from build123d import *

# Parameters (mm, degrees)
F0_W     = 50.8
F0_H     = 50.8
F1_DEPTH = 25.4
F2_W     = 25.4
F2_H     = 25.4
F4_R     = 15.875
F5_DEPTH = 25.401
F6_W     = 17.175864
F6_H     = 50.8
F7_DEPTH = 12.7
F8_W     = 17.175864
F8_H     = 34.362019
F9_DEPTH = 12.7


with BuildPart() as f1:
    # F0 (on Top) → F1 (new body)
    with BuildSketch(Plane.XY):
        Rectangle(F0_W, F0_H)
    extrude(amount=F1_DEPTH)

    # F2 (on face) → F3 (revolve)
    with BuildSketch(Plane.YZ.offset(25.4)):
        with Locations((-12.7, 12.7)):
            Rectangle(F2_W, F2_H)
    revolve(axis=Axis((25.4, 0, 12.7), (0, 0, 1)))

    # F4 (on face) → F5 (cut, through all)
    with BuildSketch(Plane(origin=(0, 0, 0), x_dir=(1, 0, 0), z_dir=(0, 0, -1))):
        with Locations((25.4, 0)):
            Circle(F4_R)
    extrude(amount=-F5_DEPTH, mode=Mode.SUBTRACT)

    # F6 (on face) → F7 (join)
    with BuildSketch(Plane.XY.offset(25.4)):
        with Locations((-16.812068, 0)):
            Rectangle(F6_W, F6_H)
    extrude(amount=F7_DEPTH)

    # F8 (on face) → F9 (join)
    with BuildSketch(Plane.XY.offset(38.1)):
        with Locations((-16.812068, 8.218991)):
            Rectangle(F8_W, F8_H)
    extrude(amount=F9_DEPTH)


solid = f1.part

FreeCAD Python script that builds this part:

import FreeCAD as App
import Part
import Sketcher
Q = App.Units.Quantity

doc = App.newDocument("Part")
body = doc.addObject("PartDesign::Body", "Body")

sketch1 = body.newObject("Sketcher::SketchObject", "Sketch")
sketch1.AttachmentSupport = (doc.getObject("XY_Plane"), [""])
sketch1.MapMode = "FlatFace"
sketch1.addGeometry(Part.LineSegment(App.Vector(-25, 25, 0), App.Vector(-25, -25, 0)), False)
sketch1.addGeometry(Part.LineSegment(App.Vector(-25, -25, 0), App.Vector(25, -25, 0)), False)
sketch1.addGeometry(Part.LineSegment(App.Vector(25, -25, 0), App.Vector(25, 25, 0)), False)
sketch1.addGeometry(Part.LineSegment(App.Vector(25, 25, 0), App.Vector(-25, 25, 0)), False)
sketch1.addConstraint(Sketcher.Constraint("Coincident", 0, 2, 1, 1))
sketch1.addConstraint(Sketcher.Constraint("Coincident", 1, 2, 2, 1))
sketch1.addConstraint(Sketcher.Constraint("Coincident", 2, 2, 3, 1))
sketch1.addConstraint(Sketcher.Constraint("Coincident", 3, 2, 0, 1))
sketch1.addConstraint(Sketcher.Constraint("Vertical", 0))
sketch1.addConstraint(Sketcher.Constraint("Horizontal", 1))
sketch1.addConstraint(Sketcher.Constraint("Vertical", 2))
sketch1.addConstraint(Sketcher.Constraint("Horizontal", 3))
sketch1.addConstraint(Sketcher.Constraint("Symmetric", 0, 2, 2, 2, -1, 1))
sketch1.addConstraint(Sketcher.Constraint("Equal", 3, 0))
sketch1.addConstraint(Sketcher.Constraint("DistanceX", 1, 1, 1, 2, Q("2 in")))
pad1 = body.newObject("PartDesign::Pad", "Pad")
pad1.Profile = sketch1
pad1.Length = Q("1 in")

sketch2 = body.newObject("Sketcher::SketchObject", "Sketch001")
sketch2.AttachmentSupport = (doc.getObject("YZ_Plane"), [""])
sketch2.MapMode = "FlatFace"
sketch2.AttachmentOffset = App.Placement(App.Vector(0, 0, 1 * 25.4), App.Rotation())
sketch2.addGeometry(Part.LineSegment(App.Vector(-25, 25, 0), App.Vector(-25, 0, 0)), False)
sketch2.addGeometry(Part.LineSegment(App.Vector(-25, 0, 0), App.Vector(0, 0, 0)), False)
sketch2.addGeometry(Part.LineSegment(App.Vector(0, 0, 0), App.Vector(0, 25, 0)), False)
sketch2.addGeometry(Part.LineSegment(App.Vector(0, 25, 0), App.Vector(-25, 25, 0)), False)
sketch2.addConstraint(Sketcher.Constraint("Coincident", 0, 2, 1, 1))
sketch2.addConstraint(Sketcher.Constraint("Coincident", 1, 2, 2, 1))
sketch2.addConstraint(Sketcher.Constraint("Coincident", 2, 2, 3, 1))
sketch2.addConstraint(Sketcher.Constraint("Coincident", 3, 2, 0, 1))
sketch2.addConstraint(Sketcher.Constraint("Vertical", 0))
sketch2.addConstraint(Sketcher.Constraint("Horizontal", 1))
sketch2.addConstraint(Sketcher.Constraint("Vertical", 2))
sketch2.addConstraint(Sketcher.Constraint("Horizontal", 3))
sketch2.addConstraint(Sketcher.Constraint("Coincident", 1, 2, -1, 1))
sketch2.addConstraint(Sketcher.Constraint("Equal", 3, 0))
sketch2.addConstraint(Sketcher.Constraint("DistanceX", 1, 1, 1, 2, Q("1 in")))
revolution = body.newObject("PartDesign::Revolution", "Revolution")
revolution.Profile = sketch2
revolution.ReferenceAxis = (sketch2, ["V_Axis"])
revolution.Angle = 360

sketch3 = body.newObject("Sketcher::SketchObject", "Sketch002")
sketch3.AttachmentSupport = (doc.getObject("XY_Plane"), [""])
sketch3.MapMode = "FlatFace"
sketch3.addGeometry(Part.Circle(App.Vector(25, 0, 0), App.Vector(0, 0, 1), 16), False)
sketch3.addConstraint(Sketcher.Constraint("PointOnObject", 0, 3, -1))
sketch3.addConstraint(Sketcher.Constraint("Diameter", 0, Q("1.25 in")))
sketch3.addConstraint(Sketcher.Constraint("DistanceX", -1, 1, 0, 3, Q("1 in")))
pocket1 = body.newObject("PartDesign::Pocket", "Pocket")
pocket1.Profile = sketch3
pocket1.Type = "ThroughAll"
pocket1.Reversed = True

sketch4 = body.newObject("Sketcher::SketchObject", "Sketch003")
sketch4.AttachmentSupport = (doc.getObject("XY_Plane"), [""])
sketch4.MapMode = "FlatFace"
sketch4.AttachmentOffset = App.Placement(App.Vector(0, 0, 1 * 25.4), App.Rotation())
sketch4.addGeometry(Part.LineSegment(App.Vector(-25, 25, 0), App.Vector(-25, -25, 0)), False)
sketch4.addGeometry(Part.LineSegment(App.Vector(-25, -25, 0), App.Vector(-8, -25, 0)), False)
sketch4.addGeometry(Part.LineSegment(App.Vector(-8, -25, 0), App.Vector(-8, 25, 0)), False)
sketch4.addGeometry(Part.LineSegment(App.Vector(-8, 25, 0), App.Vector(-25, 25, 0)), False)
sketch4.addConstraint(Sketcher.Constraint("Coincident", 0, 2, 1, 1))
sketch4.addConstraint(Sketcher.Constraint("Coincident", 1, 2, 2, 1))
sketch4.addConstraint(Sketcher.Constraint("Coincident", 2, 2, 3, 1))
sketch4.addConstraint(Sketcher.Constraint("Coincident", 3, 2, 0, 1))
sketch4.addConstraint(Sketcher.Constraint("Vertical", 0))
sketch4.addConstraint(Sketcher.Constraint("Horizontal", 1))
sketch4.addConstraint(Sketcher.Constraint("Vertical", 2))
sketch4.addConstraint(Sketcher.Constraint("Horizontal", 3))
sketch4.addConstraint(Sketcher.Constraint("DistanceY", 0, 2, 0, 1, Q("2 in")))
sketch4.addConstraint(Sketcher.Constraint("DistanceX", 0, 2, -1, 1, Q("1 in")))
sketch4.addConstraint(Sketcher.Constraint("DistanceY", 0, 2, -1, 1, Q("1 in")))
sketch4.addConstraint(Sketcher.Constraint("DistanceX", 1, 1, 1, 2, Q("17.175864 mm")))
pad2 = body.newObject("PartDesign::Pad", "Pad001")
pad2.Profile = sketch4
pad2.Length = Q("0.5 in")

sketch5 = body.newObject("Sketcher::SketchObject", "Sketch004")
sketch5.AttachmentSupport = (doc.getObject("XY_Plane"), [""])
sketch5.MapMode = "FlatFace"
sketch5.AttachmentOffset = App.Placement(App.Vector(0, 0, 1.5 * 25.4), App.Rotation())
sketch5.addGeometry(Part.LineSegment(App.Vector(-25, 25, 0), App.Vector(-25, -9, 0)), False)
sketch5.addGeometry(Part.LineSegment(App.Vector(-25, -9, 0), App.Vector(-8, -9, 0)), False)
sketch5.addGeometry(Part.LineSegment(App.Vector(-8, -9, 0), App.Vector(-8, 25, 0)), False)
sketch5.addGeometry(Part.LineSegment(App.Vector(-8, 25, 0), App.Vector(-25, 25, 0)), False)
sketch5.addConstraint(Sketcher.Constraint("Coincident", 0, 2, 1, 1))
sketch5.addConstraint(Sketcher.Constraint("Coincident", 1, 2, 2, 1))
sketch5.addConstraint(Sketcher.Constraint("Coincident", 2, 2, 3, 1))
sketch5.addConstraint(Sketcher.Constraint("Coincident", 3, 2, 0, 1))
sketch5.addConstraint(Sketcher.Constraint("Vertical", 0))
sketch5.addConstraint(Sketcher.Constraint("Horizontal", 1))
sketch5.addConstraint(Sketcher.Constraint("Vertical", 2))
sketch5.addConstraint(Sketcher.Constraint("Horizontal", 3))
sketch5.addConstraint(Sketcher.Constraint("DistanceX", 0, 2, -1, 1, Q("1 in")))
sketch5.addConstraint(Sketcher.Constraint("DistanceY", -1, 1, 2, 2, Q("1 in")))
sketch5.addConstraint(Sketcher.Constraint("DistanceY", 0, 2, 0, 1, Q("34.362019 mm")))
sketch5.addConstraint(Sketcher.Constraint("DistanceX", 1, 1, 1, 2, Q("17.175864 mm")))
pad3 = body.newObject("PartDesign::Pad", "Pad002")
pad3.Profile = sketch5
pad3.Length = Q("0.5 in")

doc.recompute()
